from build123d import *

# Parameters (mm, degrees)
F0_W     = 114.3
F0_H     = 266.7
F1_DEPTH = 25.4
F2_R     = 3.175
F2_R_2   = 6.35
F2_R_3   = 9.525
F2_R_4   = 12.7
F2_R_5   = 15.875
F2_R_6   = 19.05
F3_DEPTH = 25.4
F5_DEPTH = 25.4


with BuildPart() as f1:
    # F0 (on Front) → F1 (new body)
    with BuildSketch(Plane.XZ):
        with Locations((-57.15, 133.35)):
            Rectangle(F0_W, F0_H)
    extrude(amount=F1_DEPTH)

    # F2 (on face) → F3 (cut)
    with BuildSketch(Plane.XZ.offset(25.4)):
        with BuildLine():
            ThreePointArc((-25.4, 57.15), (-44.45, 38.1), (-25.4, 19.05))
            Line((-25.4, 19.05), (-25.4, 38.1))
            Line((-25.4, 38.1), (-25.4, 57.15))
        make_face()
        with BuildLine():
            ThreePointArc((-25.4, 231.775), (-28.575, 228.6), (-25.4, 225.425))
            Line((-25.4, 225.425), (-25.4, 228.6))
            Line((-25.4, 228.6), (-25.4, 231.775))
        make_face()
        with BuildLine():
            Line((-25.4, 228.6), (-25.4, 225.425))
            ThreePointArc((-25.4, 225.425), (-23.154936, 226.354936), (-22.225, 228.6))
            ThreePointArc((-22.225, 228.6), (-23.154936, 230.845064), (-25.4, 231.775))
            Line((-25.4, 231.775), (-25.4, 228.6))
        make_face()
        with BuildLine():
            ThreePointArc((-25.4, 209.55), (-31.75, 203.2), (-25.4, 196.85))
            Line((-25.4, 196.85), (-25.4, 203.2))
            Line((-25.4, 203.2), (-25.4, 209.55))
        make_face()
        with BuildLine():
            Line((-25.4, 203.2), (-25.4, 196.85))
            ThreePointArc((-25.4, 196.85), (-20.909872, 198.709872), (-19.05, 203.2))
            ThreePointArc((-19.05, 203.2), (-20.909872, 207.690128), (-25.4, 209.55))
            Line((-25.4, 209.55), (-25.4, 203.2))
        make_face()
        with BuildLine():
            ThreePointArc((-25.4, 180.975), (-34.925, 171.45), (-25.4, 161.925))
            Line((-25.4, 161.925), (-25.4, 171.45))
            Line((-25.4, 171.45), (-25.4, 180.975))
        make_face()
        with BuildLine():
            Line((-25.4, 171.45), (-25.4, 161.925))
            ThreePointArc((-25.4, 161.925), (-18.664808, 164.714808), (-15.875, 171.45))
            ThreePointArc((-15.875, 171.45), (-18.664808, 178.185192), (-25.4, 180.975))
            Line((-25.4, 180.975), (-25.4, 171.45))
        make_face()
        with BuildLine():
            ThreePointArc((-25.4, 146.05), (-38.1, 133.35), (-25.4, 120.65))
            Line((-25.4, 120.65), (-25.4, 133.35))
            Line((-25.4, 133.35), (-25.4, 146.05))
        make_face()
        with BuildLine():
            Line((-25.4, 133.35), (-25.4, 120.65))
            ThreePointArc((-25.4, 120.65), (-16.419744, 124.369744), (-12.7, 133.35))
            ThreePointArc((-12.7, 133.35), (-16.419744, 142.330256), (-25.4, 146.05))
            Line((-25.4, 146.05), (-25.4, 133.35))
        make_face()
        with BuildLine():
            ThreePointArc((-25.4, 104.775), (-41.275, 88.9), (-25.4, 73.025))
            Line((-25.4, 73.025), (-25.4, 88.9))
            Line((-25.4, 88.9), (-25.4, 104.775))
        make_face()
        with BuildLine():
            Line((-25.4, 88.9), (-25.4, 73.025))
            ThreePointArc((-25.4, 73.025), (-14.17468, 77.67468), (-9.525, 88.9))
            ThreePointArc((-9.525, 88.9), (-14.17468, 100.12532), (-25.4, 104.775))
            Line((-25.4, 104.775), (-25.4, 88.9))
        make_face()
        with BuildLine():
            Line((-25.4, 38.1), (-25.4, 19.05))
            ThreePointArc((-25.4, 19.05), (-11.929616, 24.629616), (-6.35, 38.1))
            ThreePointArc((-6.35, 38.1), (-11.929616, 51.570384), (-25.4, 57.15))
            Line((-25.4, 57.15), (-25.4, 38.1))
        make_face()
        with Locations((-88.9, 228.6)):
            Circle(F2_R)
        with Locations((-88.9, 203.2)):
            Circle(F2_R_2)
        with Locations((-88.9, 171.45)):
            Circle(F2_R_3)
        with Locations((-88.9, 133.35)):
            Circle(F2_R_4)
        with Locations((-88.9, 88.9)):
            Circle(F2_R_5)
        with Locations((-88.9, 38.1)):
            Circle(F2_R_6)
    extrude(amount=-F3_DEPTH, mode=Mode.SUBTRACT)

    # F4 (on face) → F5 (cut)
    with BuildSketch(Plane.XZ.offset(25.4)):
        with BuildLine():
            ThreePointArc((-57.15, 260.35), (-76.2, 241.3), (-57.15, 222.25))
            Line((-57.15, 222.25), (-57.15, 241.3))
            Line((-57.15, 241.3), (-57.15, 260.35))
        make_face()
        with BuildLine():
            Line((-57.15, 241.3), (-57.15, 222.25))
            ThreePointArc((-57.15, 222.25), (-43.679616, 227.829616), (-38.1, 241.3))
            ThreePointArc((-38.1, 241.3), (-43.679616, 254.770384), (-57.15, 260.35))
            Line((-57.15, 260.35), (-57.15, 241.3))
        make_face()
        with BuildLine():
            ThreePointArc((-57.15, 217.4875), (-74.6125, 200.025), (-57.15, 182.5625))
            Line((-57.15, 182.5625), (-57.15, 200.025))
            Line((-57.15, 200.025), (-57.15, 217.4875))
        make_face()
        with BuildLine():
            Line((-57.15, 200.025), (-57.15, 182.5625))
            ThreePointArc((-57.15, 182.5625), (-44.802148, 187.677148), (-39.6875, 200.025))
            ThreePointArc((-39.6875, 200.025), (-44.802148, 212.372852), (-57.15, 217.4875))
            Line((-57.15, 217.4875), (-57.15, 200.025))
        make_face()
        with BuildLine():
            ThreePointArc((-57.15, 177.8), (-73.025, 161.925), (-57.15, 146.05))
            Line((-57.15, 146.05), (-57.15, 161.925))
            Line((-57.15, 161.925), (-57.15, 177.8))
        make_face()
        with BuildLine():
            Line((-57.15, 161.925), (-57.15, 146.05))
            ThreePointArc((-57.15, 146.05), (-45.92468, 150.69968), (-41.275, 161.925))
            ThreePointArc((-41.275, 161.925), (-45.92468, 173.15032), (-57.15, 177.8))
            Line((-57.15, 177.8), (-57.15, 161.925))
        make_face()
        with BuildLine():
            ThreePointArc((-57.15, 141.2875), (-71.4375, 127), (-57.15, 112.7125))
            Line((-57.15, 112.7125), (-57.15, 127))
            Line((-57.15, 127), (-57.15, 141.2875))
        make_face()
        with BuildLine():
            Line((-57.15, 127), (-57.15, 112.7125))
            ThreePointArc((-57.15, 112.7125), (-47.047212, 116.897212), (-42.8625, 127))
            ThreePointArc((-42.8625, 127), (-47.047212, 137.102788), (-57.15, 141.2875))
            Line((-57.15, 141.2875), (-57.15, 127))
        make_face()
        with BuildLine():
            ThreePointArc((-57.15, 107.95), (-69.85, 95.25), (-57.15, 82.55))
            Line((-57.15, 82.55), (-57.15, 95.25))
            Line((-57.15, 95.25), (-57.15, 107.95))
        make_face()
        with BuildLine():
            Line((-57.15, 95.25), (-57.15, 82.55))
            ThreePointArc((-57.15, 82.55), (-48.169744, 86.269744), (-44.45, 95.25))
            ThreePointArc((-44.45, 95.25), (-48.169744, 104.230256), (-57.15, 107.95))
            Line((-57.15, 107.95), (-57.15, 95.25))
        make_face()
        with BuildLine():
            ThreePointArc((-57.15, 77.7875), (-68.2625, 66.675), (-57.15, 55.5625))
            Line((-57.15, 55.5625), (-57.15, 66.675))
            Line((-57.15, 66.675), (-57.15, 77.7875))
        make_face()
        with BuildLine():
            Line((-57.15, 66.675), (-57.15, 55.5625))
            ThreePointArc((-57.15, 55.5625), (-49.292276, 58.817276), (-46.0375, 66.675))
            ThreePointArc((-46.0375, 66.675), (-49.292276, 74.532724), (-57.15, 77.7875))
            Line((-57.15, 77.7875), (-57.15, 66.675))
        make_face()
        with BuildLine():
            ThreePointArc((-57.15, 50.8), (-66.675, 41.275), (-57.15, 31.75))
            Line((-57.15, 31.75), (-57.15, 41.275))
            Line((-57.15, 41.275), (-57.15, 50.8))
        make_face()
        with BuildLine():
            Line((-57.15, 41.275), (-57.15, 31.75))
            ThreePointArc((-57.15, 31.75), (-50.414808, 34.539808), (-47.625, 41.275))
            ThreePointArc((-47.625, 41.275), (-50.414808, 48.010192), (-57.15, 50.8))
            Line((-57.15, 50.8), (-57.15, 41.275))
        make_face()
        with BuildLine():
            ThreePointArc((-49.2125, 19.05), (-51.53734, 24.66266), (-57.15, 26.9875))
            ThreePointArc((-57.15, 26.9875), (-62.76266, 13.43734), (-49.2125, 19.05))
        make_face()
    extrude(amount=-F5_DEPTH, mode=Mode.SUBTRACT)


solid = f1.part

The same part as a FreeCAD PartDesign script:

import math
import FreeCAD as App
import Part
import Sketcher
from FreeCAD import Vector
Q = App.Units.Quantity

doc = App.newDocument("Part")
body = doc.addObject("PartDesign::Body", "Body")

# Sketch on XZ plane
sketch1 = doc.addObject("Sketcher::SketchObject", "Sketch")
body.addObject(sketch1)
sketch1.AttachmentSupport = (doc.XZ_Plane, [""])
sketch1.MapMode = "FlatFace"
sketch1.addGeometry([
    Part.LineSegment(Vector(-114, 267, 0), Vector(-114, 0, 0)),
    Part.LineSegment(Vector(-114, 0, 0), Vector(0, 0, 0)),
    Part.LineSegment(Vector(0, 0, 0), Vector(0, 267, 0)),
    Part.LineSegment(Vector(0, 267, 0), Vector(-114, 267, 0)),
], False)
sketch1.addConstraint([
    Sketcher.Constraint("Coincident", 0, 2, 1, 1),
    Sketcher.Constraint("Coincident", 1, 2, 2, 1),
    Sketcher.Constraint("Coincident", 2, 2, 3, 1),
    Sketcher.Constraint("Coincident", 3, 2, 0, 1),
    Sketcher.Constraint("Vertical", 0),
    Sketcher.Constraint("Horizontal", 1),
    Sketcher.Constraint("Vertical", 2),
    Sketcher.Constraint("Horizontal", 3),
    Sketcher.Constraint("Coincident", 1, 2, -1, 1),
    Sketcher.Constraint("DistanceX", 1, 1, 1, 2, Q("4.5 in")),
    Sketcher.Constraint("DistanceY", 0, 2, 0, 1, Q("10.5 in")),
])
pad1 = doc.addObject("PartDesign::Pad", "Pad")
body.addObject(pad1)
pad1.Profile = sketch1
pad1.Length = Q("1 in")

# Sketch on XZ plane
sketch2 = doc.addObject("Sketcher::SketchObject", "Sketch001")
body.addObject(sketch2)
sketch2.AttachmentSupport = (doc.XZ_Plane, [""])
sketch2.MapMode = "FlatFace"
sketch2.AttachmentOffset = App.Placement(Vector(0, 0, 1 * 25.4), App.Rotation())
sketch2.addGeometry([
    Part.ArcOfCircle(Part.Circle(Vector(-25.4, 38.1, 0), Vector(0, 0, 1), 19.1), math.radians(90), math.radians(270)),  # 0
    Part.ArcOfCircle(Part.Circle(Vector(-25.4, 38.1, 0), Vector(0, 0, 1), 19.1), math.radians(-90), math.radians(0)),  # 1
    Part.ArcOfCircle(Part.Circle(Vector(-25.4, 38.1, 0), Vector(0, 0, 1), 19.1), math.radians(0), math.radians(90)),  # 2
    Part.ArcOfCircle(Part.Circle(Vector(-25.4, 228.6, 0), Vector(0, 0, 1), 3.2), math.radians(90), math.radians(270)),  # 3
    Part.ArcOfCircle(Part.Circle(Vector(-25.4, 228.6, 0), Vector(0, 0, 1), 3.2), math.radians(-90), math.radians(0)),  # 4
    Part.ArcOfCircle(Part.Circle(Vector(-25.4, 228.6, 0), Vector(0, 0, 1), 3.2), math.radians(0), math.radians(90)),  # 5
    Part.ArcOfCircle(Part.Circle(Vector(-25.4, 203.2, 0), Vector(0, 0, 1), 6.3), math.radians(90), math.radians(270)),  # 6
    Part.ArcOfCircle(Part.Circle(Vector(-25.4, 203.2, 0), Vector(0, 0, 1), 6.4), math.radians(-90), math.radians(0)),  # 7
    Part.ArcOfCircle(Part.Circle(Vector(-25.4, 203.2, 0), Vector(0, 0, 1), 6.4), math.radians(0), math.radians(90)),  # 8
    Part.ArcOfCircle(Part.Circle(Vector(-25.4, 171.4, 0), Vector(0, 0, 1), 9.5), math.radians(90), math.radians(270)),  # 9
    Part.ArcOfCircle(Part.Circle(Vector(-25.4, 171.5, 0), Vector(0, 0, 1), 9.5), math.radians(-90), math.radians(0)),  # 10
    Part.ArcOfCircle(Part.Circle(Vector(-25.4, 171.4, 0), Vector(0, 0, 1), 9.5), math.radians(0), math.radians(90)),  # 11
    Part.ArcOfCircle(Part.Circle(Vector(-25.4, 133.3, 0), Vector(0, 0, 1), 12.7), math.radians(90), math.radians(270)),  # 12
    Part.ArcOfCircle(Part.Circle(Vector(-25.4, 133.4, 0), Vector(0, 0, 1), 12.7), math.radians(-90), math.radians(0)),  # 13
    Part.ArcOfCircle(Part.Circle(Vector(-25.4, 133.3, 0), Vector(0, 0, 1), 12.7), math.radians(0), math.radians(90)),  # 14
    Part.ArcOfCircle(Part.Circle(Vector(-25.4, 88.9, 0), Vector(0, 0, 1), 15.9), math.radians(90), math.radians(270)),  # 15
    Part.ArcOfCircle(Part.Circle(Vector(-25.4, 88.9, 0), Vector(0, 0, 1), 15.9), math.radians(-90), math.radians(0)),  # 16
    Part.ArcOfCircle(Part.Circle(Vector(-25.4, 88.9, 0), Vector(0, 0, 1), 15.9), math.radians(0), math.radians(90)),  # 17
    Part.Circle(Vector(-88.9, 228.6, 0), Vector(0, 0, 1), 3.2),  # 18
    Part.Circle(Vector(-88.9, 203.2, 0), Vector(0, 0, 1), 6.3),  # 19
    Part.Circle(Vector(-88.9, 171.4, 0), Vector(0, 0, 1), 9.5),  # 20
    Part.Circle(Vector(-88.9, 133.3, 0), Vector(0, 0, 1), 12.7),  # 21
    Part.Circle(Vector(-88.9, 88.9, 0), Vector(0, 0, 1), 15.9),  # 22
    Part.Circle(Vector(-88.9, 38.1, 0), Vector(0, 0, 1), 19.1),  # 23
], False)
sketch2.addConstraint([
    Sketcher.Constraint("Tangent", 0, 2, 1, 1),
    Sketcher.Constraint("Tangent", 1, 2, 2, 1),
    Sketcher.Constraint("Tangent", 2, 2, 0, 1),
    Sketcher.Constraint("Tangent", 3, 2, 4, 1),
    Sketcher.Constraint("Tangent", 4, 2, 5, 1),
    Sketcher.Constraint("Tangent", 5, 2, 3, 1),
    Sketcher.Constraint("Tangent", 6, 2, 7, 1),
    Sketcher.Constraint("Tangent", 7, 2, 8, 1),
    Sketcher.Constraint("Tangent", 8, 2, 6, 1),
    Sketcher.Constraint("Tangent", 9, 2, 10, 1),
    Sketcher.Constraint("Tangent", 10, 2, 11, 1),
    Sketcher.Constraint("Tangent", 11, 2, 9, 1),
    Sketcher.Constraint("Tangent", 12, 2, 13, 1),
    Sketcher.Constraint("Tangent", 13, 2, 14, 1),
    Sketcher.Constraint("Tangent", 14, 2, 12, 1),
    Sketcher.Constraint("Tangent", 15, 2, 16, 1),
    Sketcher.Constraint("Tangent", 16, 2, 17, 1),
    Sketcher.Constraint("Tangent", 17, 2, 15, 1),
    Sketcher.Constraint("Equal", 5, 18),
    Sketcher.Constraint("Equal", 8, 19),
    Sketcher.Constraint("Equal", 11, 20),
    Sketcher.Constraint("Equal", 14, 21),
    Sketcher.Constraint("Equal", 17, 22),
    Sketcher.Constraint("Equal", 2, 23),
    Sketcher.Constraint("Horizontal", 5, 3, 18, 3),
    Sketcher.Constraint("Horizontal", 8, 3, 19, 3),
    Sketcher.Constraint("Horizontal", 11, 3, 20, 3),
    Sketcher.Constraint("Horizontal", 14, 3, 21, 3),
    Sketcher.Constraint("Horizontal", 17, 3, 22, 3),
    Sketcher.Constraint("Horizontal", 2, 3, 23, 3),
    Sketcher.Constraint("Horizontal", 23, 3, 1, 2),
    Sketcher.Constraint("Horizontal", 18, 3, 4, 2),
    Sketcher.Constraint("Horizontal", 19, 3, 7, 2),
    Sketcher.Constraint("Horizontal", 20, 3, 10, 2),
    Sketcher.Constraint("Horizontal", 21, 3, 13, 2),
    Sketcher.Constraint("Horizontal", 22, 3, 16, 2),
    Sketcher.Constraint("Vertical", 2, 3, 3, 3),
    Sketcher.Constraint("Vertical", 5, 3, 6, 3),
    Sketcher.Constraint("Vertical", 8, 3, 9, 3),
    Sketcher.Constraint("Vertical", 11, 3, 12, 3),
    Sketcher.Constraint("Vertical", 14, 3, 15, 3),
    Sketcher.Constraint("Vertical", 18, 3, 19, 3),
    Sketcher.Constraint("Vertical", 19, 3, 20, 3),
    Sketcher.Constraint("Vertical", 20, 3, 21, 3),
    Sketcher.Constraint("Vertical", 21, 3, 22, 3),
    Sketcher.Constraint("Vertical", 22, 3, 23, 3),
    Sketcher.Constraint("Vertical", 17, 3, 0, 2),
    Sketcher.Constraint("Vertical", 0, 2, 2, 2),
    Sketcher.Constraint("Vertical", 2, 2, 3, 2),
    Sketcher.Constraint("Vertical", 3, 2, 5, 2),
    Sketcher.Constraint("Vertical", 5, 2, 6, 2),
    Sketcher.Constraint("Vertical", 6, 2, 8, 2),
    Sketcher.Constraint("Vertical", 8, 2, 9, 2),
    Sketcher.Constraint("Vertical", 9, 2, 11, 2),
    Sketcher.Constraint("Vertical", 11, 2, 12, 2),
    Sketcher.Constraint("Vertical", 12, 2, 14, 2),
    Sketcher.Constraint("Vertical", 14, 2, 15, 2),
    Sketcher.Constraint("Vertical", 15, 2, 17, 2),
    Sketcher.Constraint("Diameter", 21, Q("1 in")),
    Sketcher.Constraint("Diameter", 19, Q("0.5 in")),
    Sketcher.Constraint("Diameter", 23, Q("1.5 in")),
    Sketcher.Constraint("Diameter", 18, Q("0.25 in")),
    Sketcher.Constraint("Diameter", 20, Q("0.75 in")),
    Sketcher.Constraint("Diameter", 22, Q("1.25 in")),
    Sketcher.Constraint("DistanceX", 0, 3, -1, 1, Q("1 in")),
    Sketcher.Constraint("DistanceY", -1, 1, 3, 3, Q("9 in")),
    Sketcher.Constraint("DistanceY", -1, 1, 6, 3, Q("8 in")),
    Sketcher.Constraint("DistanceY", 1, 3, 15, 3, Q("2 in")),
    Sketcher.Constraint("DistanceY", 10, 3, 6, 2, Q("1 in")),
    Sketcher.Constraint("DistanceY", -1, 1, 0, 3, Q("1.5 in")),
    Sketcher.Constraint("DistanceX", 18, 3, -1, 1, Q("3.5 in")),
    Sketcher.Constraint("DistanceY", 12, 3, 11, 3, Q("1.5 in")),
])
pocket1 = doc.addObject("PartDesign::Pocket", "Pocket")
body.addObject(pocket1)
pocket1.Profile = sketch2
pocket1.Length = Q("1 in")

# Sketch on XZ plane
sketch3 = doc.addObject("Sketcher::SketchObject", "Sketch002")
body.addObject(sketch3)
sketch3.AttachmentSupport = (doc.XZ_Plane, [""])
sketch3.MapMode = "FlatFace"
sketch3.AttachmentOffset = App.Placement(Vector(0, 0, 1 * 25.4), App.Rotation())
sketch3.addGeometry([
    Part.ArcOfCircle(Part.Circle(Vector(-57, 241, 0), Vector(0, 0, 1), 19), math.radians(90), math.radians(270)),  # 0
    Part.ArcOfCircle(Part.Circle(Vector(-57, 241, 0), Vector(0, 0, 1), 19), math.radians(-90), math.radians(0)),  # 1
    Part.ArcOfCircle(Part.Circle(Vector(-57, 241, 0), Vector(0, 0, 1), 19), math.radians(0), math.radians(90)),  # 2
    Part.ArcOfCircle(Part.Circle(Vector(-57, 200, 0), Vector(0, 0, 1), 17), math.radians(90), math.radians(270)),  # 3
    Part.ArcOfCircle(Part.Circle(Vector(-57, 200, 0), Vector(0, 0, 1), 17), math.radians(-90), math.radians(0)),  # 4
    Part.ArcOfCircle(Part.Circle(Vector(-57, 200, 0), Vector(0, 0, 1), 17), math.radians(0), math.radians(90)),  # 5
    Part.ArcOfCircle(Part.Circle(Vector(-57, 162, 0), Vector(0, 0, 1), 16), math.radians(90), math.radians(270)),  # 6
    Part.ArcOfCircle(Part.Circle(Vector(-57, 162, 0), Vector(0, 0, 1), 16), math.radians(-90), math.radians(0)),  # 7
    Part.ArcOfCircle(Part.Circle(Vector(-57, 162, 0), Vector(0, 0, 1), 16), math.radians(0), math.radians(90)),  # 8
    Part.ArcOfCircle(Part.Circle(Vector(-57, 127, 0), Vector(0, 0, 1), 14), math.radians(90), math.radians(270)),  # 9
    Part.ArcOfCircle(Part.Circle(Vector(-57, 127, 0), Vector(0, 0, 1), 14), math.radians(-90), math.radians(0)),  # 10
    Part.ArcOfCircle(Part.Circle(Vector(-57, 127, 0), Vector(0, 0, 1), 14), math.radians(0), math.radians(90)),  # 11
    Part.ArcOfCircle(Part.Circle(Vector(-57, 95, 0), Vector(0, 0, 1), 13), math.radians(90), math.radians(270)),  # 12
    Part.ArcOfCircle(Part.Circle(Vector(-57, 95, 0), Vector(0, 0, 1), 13), math.radians(-90), math.radians(0)),  # 13
    Part.ArcOfCircle(Part.Circle(Vector(-57, 95, 0), Vector(0, 0, 1), 13), math.radians(0), math.radians(90)),  # 14
    Part.ArcOfCircle(Part.Circle(Vector(-57, 67, 0), Vector(0, 0, 1), 11), math.radians(90), math.radians(270)),  # 15
    Part.ArcOfCircle(Part.Circle(Vector(-57, 67, 0), Vector(0, 0, 1), 11), math.radians(-90), math.radians(0)),  # 16
    Part.ArcOfCircle(Part.Circle(Vector(-57, 67, 0), Vector(0, 0, 1), 11), math.radians(0), math.radians(90)),  # 17
    Part.ArcOfCircle(Part.Circle(Vector(-57, 41, 0), Vector(0, 0, 1), 10), math.radians(90), math.radians(270)),  # 18
    Part.ArcOfCircle(Part.Circle(Vector(-57, 41, 0), Vector(0, 0, 1), 10), math.radians(-90), math.radians(0)),  # 19
    Part.ArcOfCircle(Part.Circle(Vector(-57, 41, 0), Vector(0, 0, 1), 10), math.radians(0), math.radians(90)),  # 20
    Part.ArcOfCircle(Part.Circle(Vector(-57, 19, 0), Vector(0, 0, 1), 8), math.radians(0), math.radians(90)),  # 21
    Part.ArcOfCircle(Part.Circle(Vector(-57, 19, 0), Vector(0, 0, 1), 8), math.radians(90), math.radians(360)),  # 22
], False)
sketch3.addConstraint([
    Sketcher.Constraint("Tangent", 0, 2, 1, 1),
    Sketcher.Constraint("Tangent", 1, 2, 2, 1),
    Sketcher.Constraint("Tangent", 2, 2, 0, 1),
    Sketcher.Constraint("Tangent", 3, 2, 4, 1),
    Sketcher.Constraint("Tangent", 4, 2, 5, 1),
    Sketcher.Constraint("Tangent", 5, 2, 3, 1),
    Sketcher.Constraint("Tangent", 6, 2, 7, 1),
    Sketcher.Constraint("Tangent", 7, 2, 8, 1),
    Sketcher.Constraint("Tangent", 8, 2, 6, 1),
    Sketcher.Constraint("Tangent", 9, 2, 10, 1),
    Sketcher.Constraint("Tangent", 10, 2, 11, 1),
    Sketcher.Constraint("Tangent", 11, 2, 9, 1),
    Sketcher.Constraint("Tangent", 12, 2, 13, 1),
    Sketcher.Constraint("Tangent", 13, 2, 14, 1),
    Sketcher.Constraint("Tangent", 14, 2, 12, 1),
    Sketcher.Constraint("Tangent", 15, 2, 16, 1),
    Sketcher.Constraint("Tangent", 16, 2, 17, 1),
    Sketcher.Constraint("Tangent", 17, 2, 15, 1),
    Sketcher.Constraint("Tangent", 18, 2, 19, 1),
    Sketcher.Constraint("Tangent", 19, 2, 20, 1),
    Sketcher.Constraint("Tangent", 20, 2, 18, 1),
    Sketcher.Constraint("Tangent", 21, 1, 22, 2),
    Sketcher.Constraint("Coincident", 22, 1, 21, 2),
    Sketcher.Constraint("Horizontal", 2, 3, 1, 2),
    Sketcher.Constraint("Horizontal", 5, 3, 4, 2),
    Sketcher.Constraint("Horizontal", 8, 3, 7, 2),
    Sketcher.Constraint("Horizontal", 11, 3, 10, 2),
    Sketcher.Constraint("Horizontal", 14, 3, 13, 2),
    Sketcher.Constraint("Horizontal", 17, 3, 16, 2),
    Sketcher.Constraint("Horizontal", 20, 3, 19, 2),
    Sketcher.Constraint("Horizontal", 22, 3, 21, 1),
    Sketcher.Constraint("Vertical", 2, 3, 3, 3),
    Sketcher.Constraint("Vertical", 5, 3, 6, 3),
    Sketcher.Constraint("Vertical", 8, 3, 9, 3),
    Sketcher.Constraint("Vertical", 11, 3, 12, 3),
    Sketcher.Constraint("Vertical", 14, 3, 15, 3),
    Sketcher.Constraint("Vertical", 17, 3, 18, 3),
    Sketcher.Constraint("Vertical", 20, 3, 21, 3),
    Sketcher.Constraint("Vertical", 22, 3, 0, 2),
    Sketcher.Constraint("Vertical", 0, 2, 2, 2),
    Sketcher.Constraint("Vertical", 2, 2, 3, 2),
    Sketcher.Constraint("Vertical", 3, 2, 5, 2),
    Sketcher.Constraint("Vertical", 5, 2, 6, 2),
    Sketcher.Constraint("Vertical", 6, 2, 8, 2),
    Sketcher.Constraint("Vertical", 8, 2, 9, 2),
    Sketcher.Constraint("Vertical", 9, 2, 11, 2),
    Sketcher.Constraint("Vertical", 11, 2, 12, 2),
    Sketcher.Constraint("Vertical", 12, 2, 14, 2),
    Sketcher.Constraint("Vertical", 14, 2, 15, 2),
    Sketcher.Constraint("Vertical", 15, 2, 17, 2),
    Sketcher.Constraint("Vertical", 17, 2, 18, 2),
    Sketcher.Constraint("Vertical", 18, 2, 20, 2),
    Sketcher.Constraint("Vertical", 20, 2, 22, 1),
    Sketcher.Constraint("Radius", 12, Q("0.5 in")),
    Sketcher.Constraint("Radius", 0, Q("0.75 in")),
    Sketcher.Constraint("DistanceY", -1, 1, 9, 3, Q("5 in")),
    Sketcher.Constraint("DistanceY", -1, 1, 8, 2, Q("7 in")),
    Sketcher.Constraint("DistanceY", -1, 1, 20, 2, Q("2 in")),
    Sketcher.Constraint("Radius", 3, Q("0.6875 in")),
    Sketcher.Constraint("Radius", 6, Q("0.625 in")),
    Sketcher.Constraint("Radius", 9, Q("0.5625 in")),
    Sketcher.Constraint("Radius", 15, Q("0.4375 in")),
    Sketcher.Constraint("Radius", 18, Q("0.375 in")),
    Sketcher.Constraint("Radius", 21, Q("0.3125 in")),
    Sketcher.Constraint("DistanceY", 18, 3, 17, 3, Q("1 in")),
    Sketcher.Constraint("DistanceY", -1, 1, 0, 3, Q("9.5 in")),
    Sketcher.Constraint("DistanceX", 1, 2, -1, 1, Q("1.5 in")),
    Sketcher.Constraint("DistanceY", 6, 3, 5, 3, Q("1.5 in")),
    Sketcher.Constraint("DistanceY", 22, 3, 18, 2, Q("0.5 in")),
    Sketcher.Constraint("DistanceY", -1, 1, 12, 3, Q("3.75 in")),
])
pocket2 = doc.addObject("PartDesign::Pocket", "Pocket001")
body.addObject(pocket2)
pocket2.Profile = sketch3
pocket2.Length = Q("1 in")

doc.recompute()
